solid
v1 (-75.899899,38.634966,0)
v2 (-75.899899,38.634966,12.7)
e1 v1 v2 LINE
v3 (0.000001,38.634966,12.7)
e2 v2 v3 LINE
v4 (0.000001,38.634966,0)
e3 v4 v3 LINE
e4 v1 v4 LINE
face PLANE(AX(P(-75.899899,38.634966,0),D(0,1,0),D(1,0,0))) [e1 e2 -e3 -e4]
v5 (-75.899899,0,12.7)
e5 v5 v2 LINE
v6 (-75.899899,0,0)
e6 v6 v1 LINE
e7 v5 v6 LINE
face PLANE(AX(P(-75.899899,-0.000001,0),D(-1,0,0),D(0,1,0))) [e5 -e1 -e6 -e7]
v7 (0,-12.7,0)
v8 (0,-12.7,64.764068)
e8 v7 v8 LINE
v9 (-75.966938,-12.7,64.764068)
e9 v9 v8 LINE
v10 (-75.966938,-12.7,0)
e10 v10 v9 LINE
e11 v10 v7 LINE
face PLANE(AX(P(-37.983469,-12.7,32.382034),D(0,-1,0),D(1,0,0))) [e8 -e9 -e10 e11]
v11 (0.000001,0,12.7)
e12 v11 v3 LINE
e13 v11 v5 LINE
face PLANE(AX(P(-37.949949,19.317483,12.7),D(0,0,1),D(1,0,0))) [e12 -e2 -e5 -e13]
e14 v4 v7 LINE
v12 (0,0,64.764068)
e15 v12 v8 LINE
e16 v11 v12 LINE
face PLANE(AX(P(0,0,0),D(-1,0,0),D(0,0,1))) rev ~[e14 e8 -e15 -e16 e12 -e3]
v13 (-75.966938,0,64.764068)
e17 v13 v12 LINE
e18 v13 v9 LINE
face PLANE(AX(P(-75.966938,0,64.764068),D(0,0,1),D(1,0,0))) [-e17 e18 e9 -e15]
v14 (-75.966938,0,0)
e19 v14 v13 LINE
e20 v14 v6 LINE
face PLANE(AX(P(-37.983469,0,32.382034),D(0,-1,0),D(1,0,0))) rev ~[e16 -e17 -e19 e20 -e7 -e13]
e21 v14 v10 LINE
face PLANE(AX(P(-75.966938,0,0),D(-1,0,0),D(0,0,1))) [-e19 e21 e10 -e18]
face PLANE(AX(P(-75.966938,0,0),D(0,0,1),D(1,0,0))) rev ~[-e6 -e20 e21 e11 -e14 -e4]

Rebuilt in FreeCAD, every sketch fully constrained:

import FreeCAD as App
import Part
import Sketcher
Q = App.Units.Quantity


def add_polygon(sketch, points):
    """Adds a closed chain of lines whose ends are joined by coincident constraints."""
    first, n = sketch.GeometryCount, len(points)
    for a, b in zip(points, points[1:] + points[:1]):
        sketch.addGeometry(Part.LineSegment(App.Vector(*a, 0), App.Vector(*b, 0)), False)
    for i in range(n):
        sketch.addConstraint(Sketcher.Constraint("Coincident", first + i, 2, first + (i + 1) % n, 1))

doc = App.newDocument("Part")
params = doc.addObject("Spreadsheet::Sheet", "Params")
for row, (alias, value) in enumerate([
    ("pad1_length", "0.5 in"),
    ("pad2_length", "0.5 in"),
], start=1):
    params.set(f"A{row}", alias)
    params.set(f"B{row}", "=" + value)
    params.setAlias(f"B{row}", alias)

body = doc.addObject("PartDesign::Body", "Body")

# Sketch on XZ plane
sketch1 = body.newObject("Sketcher::SketchObject", "Sketch")
sketch1.AttachmentSupport = (doc.getObject("XZ_Plane"), [""])
sketch1.MapMode = "FlatFace"
add_polygon(sketch1, [(-75.966938, 64.764068), (-75.966938, 0), (0, 0), (0, 64.764068)])  # lines 0-3
sketch1.addConstraint([
    Sketcher.Constraint("Vertical", 0),
    Sketcher.Constraint("Horizontal", 1),
    Sketcher.Constraint("Vertical", 2),
    Sketcher.Constraint("Horizontal", 3),
    Sketcher.Constraint("Coincident", 1, 2, -1, 1),
    Sketcher.Constraint("DistanceX", 1, 1, 1, 2, Q("75.966939 mm")),
    Sketcher.Constraint("DistanceY", 0, 2, 0, 1, Q("64.764068 mm")),
])
pad1 = body.newObject("PartDesign::Pad", "Pad")
pad1.Profile = sketch1
pad1.setExpression("Length", "Params.pad1_length")

# Sketch on XY plane
sketch2 = body.newObject("Sketcher::SketchObject", "Sketch001")
sketch2.AttachmentSupport = (doc.getObject("XY_Plane"), [""])
sketch2.MapMode = "FlatFace"
add_polygon(sketch2, [(-75.899899, 38.634966), (-75.899899, 0), (0, 0), (0, 38.634966)])  # lines 0-3
sketch2.addConstraint([
    Sketcher.Constraint("Vertical", 0),
    Sketcher.Constraint("Horizontal", 1),
    Sketcher.Constraint("Vertical", 2),
    Sketcher.Constraint("Horizontal", 3),
    Sketcher.Constraint("Coincident", 1, 2, -1, 1),
    Sketcher.Constraint("DistanceX", 1, 1, 1, 2, Q("75.899899 mm")),
    Sketcher.Constraint("DistanceY", 0, 2, 0, 1, Q("38.634967 mm")),
])
pad2 = body.newObject("PartDesign::Pad", "Pad001")
pad2.Profile = sketch2
pad2.setExpression("Length", "Params.pad2_length")

doc.recompute()
